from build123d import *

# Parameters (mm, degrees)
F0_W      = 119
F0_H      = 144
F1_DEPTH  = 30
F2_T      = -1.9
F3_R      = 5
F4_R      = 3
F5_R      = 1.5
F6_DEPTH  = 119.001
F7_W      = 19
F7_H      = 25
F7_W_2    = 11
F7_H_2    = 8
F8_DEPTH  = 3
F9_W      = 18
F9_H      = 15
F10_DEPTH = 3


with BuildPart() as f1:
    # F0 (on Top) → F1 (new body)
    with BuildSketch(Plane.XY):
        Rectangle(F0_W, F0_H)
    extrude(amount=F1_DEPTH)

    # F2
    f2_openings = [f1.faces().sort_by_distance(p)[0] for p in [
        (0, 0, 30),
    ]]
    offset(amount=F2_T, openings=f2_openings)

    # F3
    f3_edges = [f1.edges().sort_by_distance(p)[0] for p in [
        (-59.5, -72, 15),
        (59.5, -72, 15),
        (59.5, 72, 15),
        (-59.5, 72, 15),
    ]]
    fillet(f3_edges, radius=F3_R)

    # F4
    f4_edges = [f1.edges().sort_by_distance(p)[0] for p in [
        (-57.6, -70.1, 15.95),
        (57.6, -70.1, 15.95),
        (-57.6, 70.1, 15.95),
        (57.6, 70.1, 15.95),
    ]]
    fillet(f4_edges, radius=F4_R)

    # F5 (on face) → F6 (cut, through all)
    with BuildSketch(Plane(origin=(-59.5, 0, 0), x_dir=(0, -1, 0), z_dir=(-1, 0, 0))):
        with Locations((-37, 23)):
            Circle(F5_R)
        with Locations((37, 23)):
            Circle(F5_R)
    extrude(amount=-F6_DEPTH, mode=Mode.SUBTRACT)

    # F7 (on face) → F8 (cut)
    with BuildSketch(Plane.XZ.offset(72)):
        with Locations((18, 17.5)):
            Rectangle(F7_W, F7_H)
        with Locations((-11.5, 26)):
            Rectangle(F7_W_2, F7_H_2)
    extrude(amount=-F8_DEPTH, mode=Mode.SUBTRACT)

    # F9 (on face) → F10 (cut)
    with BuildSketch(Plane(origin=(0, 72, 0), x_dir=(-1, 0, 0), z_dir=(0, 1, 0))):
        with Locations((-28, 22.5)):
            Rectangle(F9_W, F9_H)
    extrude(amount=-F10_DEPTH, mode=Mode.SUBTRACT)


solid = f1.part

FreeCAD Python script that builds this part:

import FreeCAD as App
import Part
import Sketcher

V = App.Vector


def edges_at(feature, points):
    """Names of the edges that pass closest to the given points."""
    edges = feature.Shape.Edges
    near = lambda p: min(range(len(edges)), key=lambda i: edges[i].distToShape(Part.Vertex(*p))[0])
    return sorted({f"Edge{near(p) + 1}" for p in points})


def faces_at(feature, points):
    """Names of the faces that lie closest to the given points."""
    faces = feature.Shape.Faces
    near = lambda p: min(range(len(faces)), key=lambda i: faces[i].distToShape(Part.Vertex(*p))[0])
    return sorted({f"Face{near(p) + 1}" for p in points})


def add_polygon(sketch, points):
    """Adds a closed chain of lines whose ends are joined by coincident constraints."""
    first, n = sketch.GeometryCount, len(points)
    for a, b in zip(points, points[1:] + points[:1]):
        sketch.addGeometry(Part.LineSegment(App.Vector(*a, 0), App.Vector(*b, 0)), False)
    for i in range(n):
        sketch.addConstraint(Sketcher.Constraint("Coincident", first + i, 2, first + (i + 1) % n, 1))

doc = App.newDocument("Part")
body = doc.addObject("PartDesign::Body", "Body")

# Sketch on XY plane
sketch1 = doc.addObject("Sketcher::SketchObject", "Sketch")
body.addObject(sketch1)
sketch1.AttachmentSupport = (doc.XY_Plane, [""])
sketch1.MapMode = "FlatFace"
add_polygon(sketch1, [(-60, 72), (-60, -72), (60, -72), (60, 72)])  # lines 0-3
sketch1.addConstraint(Sketcher.Constraint("Vertical", 0))
sketch1.addConstraint(Sketcher.Constraint("Horizontal", 1))
sketch1.addConstraint(Sketcher.Constraint("Vertical", 2))
sketch1.addConstraint(Sketcher.Constraint("Horizontal", 3))
sketch1.addConstraint(Sketcher.Constraint("Symmetric", 0, 2, 2, 2, -1, 1))
sketch1.addConstraint(Sketcher.Constraint("DistanceX", 1, 1, 1, 2, 119.0))
sketch1.addConstraint(Sketcher.Constraint("DistanceY", 0, 2, 0, 1, 144.0))
pad1 = doc.addObject("PartDesign::Pad", "Pad")
body.addObject(pad1)
pad1.Profile = sketch1
pad1.Length = 30
doc.recompute()

thickness = doc.addObject("PartDesign::Thickness", "Thickness")
body.addObject(thickness)
thickness.Base = (pad1, faces_at(pad1, [(0, 0, 30)]))
thickness.Value = 1.9
thickness.Reversed = True
thickness.Join = "Arc"
doc.recompute()

fillet = doc.addObject("PartDesign::Fillet", "Fillet")
body.addObject(fillet)
fillet.Base = (thickness, edges_at(thickness, [
    (-59.5, -72, 15),
    (59.5, -72, 15),
    (59.5, 72, 15),
    (-59.5, 72, 15),
]))
fillet.Radius = 5
doc.recompute()

fillet2 = doc.addObject("PartDesign::Fillet", "Fillet001")
body.addObject(fillet2)
fillet2.Base = (fillet, edges_at(fillet, [
    (-57.6, -70.1, 15.95),
    (57.6, -70.1, 15.95),
    (-57.6, 70.1, 15.95),
    (57.6, 70.1, 15.95),
]))
fillet2.Radius = 3

# Sketch on YZ plane
sketch2 = doc.addObject("Sketcher::SketchObject", "Sketch001")
body.addObject(sketch2)
sketch2.AttachmentSupport = (doc.YZ_Plane, [""])
sketch2.MapMode = "FlatFace"
sketch2.AttachmentOffset = App.Placement(V(0, 0, -59.5), App.Rotation())
sketch2.addGeometry(Part.Circle(V(37, 23, 0), V(0, 0, 1), 1.5), False)
sketch2.addGeometry(Part.Circle(V(-37, 23, 0), V(0, 0, 1), 1.5), False)
sketch2.addConstraint(Sketcher.Constraint("Equal", 0, 1))
sketch2.addConstraint(Sketcher.Constraint("Symmetric", 0, 3, 1, 3, -2))
sketch2.addConstraint(Sketcher.Constraint("Diameter", 0, 3.0))
sketch2.addConstraint(Sketcher.Constraint("DistanceX", -1, 1, 0, 3, 37.0))
sketch2.addConstraint(Sketcher.Constraint("DistanceY", -1, 1, 0, 3, 23.0))
pocket1 = doc.addObject("PartDesign::Pocket", "Pocket")
body.addObject(pocket1)
pocket1.Profile = sketch2
pocket1.Type = "ThroughAll"
pocket1.Reversed = True

# Sketch on XZ plane
sketch3 = doc.addObject("Sketcher::SketchObject", "Sketch002")
body.addObject(sketch3)
sketch3.AttachmentSupport = (doc.XZ_Plane, [""])
sketch3.MapMode = "FlatFace"
sketch3.AttachmentOffset = App.Placement(V(0, 0, 72), App.Rotation())
add_polygon(sketch3, [(8, 30), (8, 5), (28, 5), (28, 30)])  # lines 0-3
add_polygon(sketch3, [(-17, 30), (-17, 22), (-6, 22), (-6, 30)])  # lines 4-7
sketch3.addConstraint(Sketcher.Constraint("Vertical", 0))
sketch3.addConstraint(Sketcher.Constraint("Horizontal", 1))
sketch3.addConstraint(Sketcher.Constraint("Vertical", 2))
sketch3.addConstraint(Sketcher.Constraint("Horizontal", 3))
sketch3.addConstraint(Sketcher.Constraint("Vertical", 4))
sketch3.addConstraint(Sketcher.Constraint("Horizontal", 5))
sketch3.addConstraint(Sketcher.Constraint("Vertical", 6))
sketch3.addConstraint(Sketcher.Constraint("Horizontal", 7))
sketch3.addConstraint(Sketcher.Constraint("Horizontal", 3, 2, 6, 2))
sketch3.addConstraint(Sketcher.Constraint("DistanceX", 1, 1, 1, 2, 19.0))
sketch3.addConstraint(Sketcher.Constraint("DistanceX", 5, 1, 5, 2, 11.0))
sketch3.addConstraint(Sketcher.Constraint("DistanceY", 0, 2, 0, 1, 25.0))
sketch3.addConstraint(Sketcher.Constraint("DistanceY", 4, 2, 4, 1, 8.0))
sketch3.addConstraint(Sketcher.Constraint("DistanceY", -1, 1, 0, 2, 5.0))
sketch3.addConstraint(Sketcher.Constraint("DistanceX", 4, 2, -1, 1, 17.0))
sketch3.addConstraint(Sketcher.Constraint("DistanceX", -1, 1, 0, 2, 8.5))
pocket2 = doc.addObject("PartDesign::Pocket", "Pocket001")
body.addObject(pocket2)
pocket2.Profile = sketch3
pocket2.Length = 3

# Sketch on XZ plane
sketch4 = doc.addObject("Sketcher::SketchObject", "Sketch003")
body.addObject(sketch4)
sketch4.AttachmentSupport = (doc.XZ_Plane, [""])
sketch4.MapMode = "FlatFace"
sketch4.AttachmentOffset = App.Placement(V(0, 0, -72), App.Rotation())
add_polygon(sketch4, [(37, 30), (37, 15), (19, 15), (19, 30)])  # lines 0-3
sketch4.addConstraint(Sketcher.Constraint("Vertical", 0))
sketch4.addConstraint(Sketcher.Constraint("Horizontal", 1))
sketch4.addConstraint(Sketcher.Constraint("Vertical", 2))
sketch4.addConstraint(Sketcher.Constraint("Horizontal", 3))
sketch4.addConstraint(Sketcher.Constraint("DistanceX", 1, 2, 1, 1, 18.0))
sketch4.addConstraint(Sketcher.Constraint("DistanceY", 0, 2, 0, 1, 15.0))
sketch4.addConstraint(Sketcher.Constraint("DistanceX", -1, 1, 0, 2, 37.0))
sketch4.addConstraint(Sketcher.Constraint("DistanceY", -1, 1, 0, 2, 15.0))
pocket3 = doc.addObject("PartDesign::Pocket", "Pocket002")
body.addObject(pocket3)
pocket3.Profile = sketch4
pocket3.Length = 3
pocket3.Reversed = True

doc.recompute()
